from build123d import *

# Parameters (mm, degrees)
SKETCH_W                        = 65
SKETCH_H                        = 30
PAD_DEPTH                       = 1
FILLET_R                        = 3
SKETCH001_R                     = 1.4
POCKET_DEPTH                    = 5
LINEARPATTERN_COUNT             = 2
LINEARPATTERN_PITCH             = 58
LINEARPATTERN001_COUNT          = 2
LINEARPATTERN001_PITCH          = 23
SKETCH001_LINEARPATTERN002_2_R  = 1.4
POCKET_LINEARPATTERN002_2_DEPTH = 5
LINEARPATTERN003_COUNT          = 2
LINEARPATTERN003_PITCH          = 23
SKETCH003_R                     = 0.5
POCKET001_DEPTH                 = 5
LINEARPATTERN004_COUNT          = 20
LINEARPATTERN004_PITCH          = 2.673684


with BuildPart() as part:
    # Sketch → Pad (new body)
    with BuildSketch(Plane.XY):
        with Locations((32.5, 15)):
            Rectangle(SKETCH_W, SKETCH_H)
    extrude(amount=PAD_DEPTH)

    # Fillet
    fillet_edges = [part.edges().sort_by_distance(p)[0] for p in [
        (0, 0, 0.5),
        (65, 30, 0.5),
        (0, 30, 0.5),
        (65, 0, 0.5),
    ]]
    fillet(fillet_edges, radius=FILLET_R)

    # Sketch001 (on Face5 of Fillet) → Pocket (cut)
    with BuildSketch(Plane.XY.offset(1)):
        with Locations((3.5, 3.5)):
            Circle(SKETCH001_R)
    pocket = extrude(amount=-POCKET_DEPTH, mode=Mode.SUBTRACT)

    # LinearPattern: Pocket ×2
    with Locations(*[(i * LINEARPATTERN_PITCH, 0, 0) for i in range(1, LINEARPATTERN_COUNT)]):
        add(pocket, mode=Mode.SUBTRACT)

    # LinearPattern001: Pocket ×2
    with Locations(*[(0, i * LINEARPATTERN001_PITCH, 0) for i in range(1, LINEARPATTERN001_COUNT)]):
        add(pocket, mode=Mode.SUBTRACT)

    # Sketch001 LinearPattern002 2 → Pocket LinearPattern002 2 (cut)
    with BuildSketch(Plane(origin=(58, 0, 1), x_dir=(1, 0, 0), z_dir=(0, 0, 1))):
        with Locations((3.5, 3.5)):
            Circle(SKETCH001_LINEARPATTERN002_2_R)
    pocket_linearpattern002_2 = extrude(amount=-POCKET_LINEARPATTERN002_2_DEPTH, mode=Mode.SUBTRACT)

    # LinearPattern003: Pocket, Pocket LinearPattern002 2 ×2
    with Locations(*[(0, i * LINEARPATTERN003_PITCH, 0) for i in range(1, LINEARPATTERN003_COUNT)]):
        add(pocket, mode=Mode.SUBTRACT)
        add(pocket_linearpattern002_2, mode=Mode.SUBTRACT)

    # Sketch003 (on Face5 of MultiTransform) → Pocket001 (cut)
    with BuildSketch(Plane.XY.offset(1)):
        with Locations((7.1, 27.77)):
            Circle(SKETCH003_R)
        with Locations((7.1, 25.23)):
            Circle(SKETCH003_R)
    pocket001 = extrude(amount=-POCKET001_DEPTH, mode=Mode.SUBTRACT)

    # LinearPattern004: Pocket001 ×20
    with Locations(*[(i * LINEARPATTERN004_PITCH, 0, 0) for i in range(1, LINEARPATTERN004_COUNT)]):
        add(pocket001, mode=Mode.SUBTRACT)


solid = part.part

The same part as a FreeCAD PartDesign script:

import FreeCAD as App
import Part
import Sketcher
from FreeCAD import Vector


def edges_at(feature, points):
    """Names of the edges that pass closest to the given points."""
    edges = feature.Shape.Edges
    near = lambda p: min(range(len(edges)), key=lambda i: edges[i].distToShape(Part.Vertex(*p))[0])
    return sorted({f"Edge{near(p) + 1}" for p in points})


def add_polygon(sketch, points):
    """Adds a closed chain of lines whose ends are joined by coincident constraints."""
    first, n = sketch.GeometryCount, len(points)
    for a, b in zip(points, points[1:] + points[:1]):
        sketch.addGeometry(Part.LineSegment(App.Vector(*a, 0), App.Vector(*b, 0)), False)
    for i in range(n):
        sketch.addConstraint(Sketcher.Constraint("Coincident", first + i, 2, first + (i + 1) % n, 1))

doc = App.newDocument("Part")
params = doc.addObject("Spreadsheet::Sheet", "Params")
for row, (alias, value) in enumerate([
    ("sketch1_width", "65 mm"),
    ("sketch1_height", "30 mm"),
    ("pad1_length", "1 mm"),
    ("fillet_radius", "3 mm"),
    ("sketch2_diameter", "2.8 mm"),
    ("pocket1_length", "5 mm"),
    ("linearpattern_pitch", "58 mm"),
    ("linearpattern2_pitch", "23 mm"),
    ("sketch3_diameter", "2.8 mm"),
    ("pocket2_length", "5 mm"),
    ("linearpattern3_pitch", "23 mm"),
    ("sketch4_diameter", "1 mm"),
    ("pocket3_length", "5 mm"),
    ("linearpattern4_pitch", "2.673684 mm"),
], start=1):
    params.set(f"A{row}", alias)
    params.set(f"B{row}", "=" + value)
    params.setAlias(f"B{row}", alias)

body = doc.addObject("PartDesign::Body", "Body")

# Sketch on XY plane
sketch1 = body.newObject("Sketcher::SketchObject", "Sketch")
sketch1.AttachmentSupport = (doc.getObject("XY_Plane"), [""])
sketch1.MapMode = "FlatFace"
add_polygon(sketch1, [(0, 30), (0, 0), (65, 0), (65, 30)])  # lines 0-3
sketch1.addConstraint(Sketcher.Constraint("Vertical", 0))
sketch1.addConstraint(Sketcher.Constraint("Horizontal", 1))
sketch1.addConstraint(Sketcher.Constraint("Vertical", 2))
sketch1.addConstraint(Sketcher.Constraint("Horizontal", 3))
sketch1.addConstraint(Sketcher.Constraint("Coincident", 0, 2, -1, 1))
sketch1.addConstraint(Sketcher.Constraint("DistanceX", 1, 1, 1, 2, 65.0))
sketch1.addConstraint(Sketcher.Constraint("DistanceY", 0, 2, 0, 1, 30.0))
sketch1.setExpression("Constraints[9]", "Params.sketch1_width")
sketch1.setExpression("Constraints[10]", "Params.sketch1_height")
pad1 = body.newObject("PartDesign::Pad", "Pad")
pad1.Profile = sketch1
pad1.setExpression("Length", "Params.pad1_length")
doc.recompute()

fillet = body.newObject("PartDesign::Fillet", "Fillet")
fillet.Base = (pad1, edges_at(pad1, [
    (0, 0, 0.5),
    (65, 30, 0.5),
    (0, 30, 0.5),
    (65, 0, 0.5),
]))
fillet.setExpression("Radius", "Params.fillet_radius")

# Sketch on XY plane
sketch2 = body.newObject("Sketcher::SketchObject", "Sketch001")
sketch2.AttachmentSupport = (doc.getObject("XY_Plane"), [""])
sketch2.MapMode = "FlatFace"
sketch2.AttachmentOffset = App.Placement(Vector(0, 0, 1), App.Rotation())
sketch2.addGeometry(Part.Circle(Vector(3.5, 3.5, 0), Vector(0, 0, 1), 1.4), False)
sketch2.addConstraint(Sketcher.Constraint("Diameter", 0, 2.8))
sketch2.addConstraint(Sketcher.Constraint("DistanceX", -1, 1, 0, 3, 3.5))
sketch2.addConstraint(Sketcher.Constraint("DistanceY", -1, 1, 0, 3, 3.5))
sketch2.setExpression("Constraints[0]", "Params.sketch2_diameter")
pocket1 = body.newObject("PartDesign::Pocket", "Pocket")
pocket1.Profile = sketch2
pocket1.setExpression("Length", "Params.pocket1_length")
doc.recompute()

linearpattern = body.newObject("PartDesign::LinearPattern", "LinearPattern")
linearpattern.Originals = [pocket1]
linearpattern.Direction = (doc.getObject("X_Axis"), [""])
linearpattern.Mode = "offset"
linearpattern.setExpression("Offset", "Params.linearpattern_pitch")
linearpattern.Occurrences = 2
body.Tip = linearpattern
doc.recompute()

linearpattern2 = body.newObject("PartDesign::LinearPattern", "LinearPattern001")
linearpattern2.Originals = [pocket1]
linearpattern2.Direction = (doc.getObject("Y_Axis"), [""])
linearpattern2.Mode = "offset"
linearpattern2.setExpression("Offset", "Params.linearpattern2_pitch")
linearpattern2.Occurrences = 2
body.Tip = linearpattern2

# Sketch on XY plane
sketch3 = body.newObject("Sketcher::SketchObject", "Sketch002")
sketch3.AttachmentSupport = (doc.getObject("XY_Plane"), [""])
sketch3.MapMode = "FlatFace"
sketch3.AttachmentOffset = App.Placement(Vector(0, 0, 1), App.Rotation())
sketch3.addGeometry(Part.Circle(Vector(61.5, 3.5, 0), Vector(0, 0, 1), 1.4), False)
sketch3.addConstraint(Sketcher.Constraint("Diameter", 0, 2.8))
sketch3.addConstraint(Sketcher.Constraint("DistanceX", -1, 1, 0, 3, 61.5))
sketch3.addConstraint(Sketcher.Constraint("DistanceY", -1, 1, 0, 3, 3.5))
sketch3.setExpression("Constraints[0]", "Params.sketch3_diameter")
pocket2 = body.newObject("PartDesign::Pocket", "Pocket001")
pocket2.Profile = sketch3
pocket2.setExpression("Length", "Params.pocket2_length")
doc.recompute()

linearpattern3 = body.newObject("PartDesign::LinearPattern", "LinearPattern002")
linearpattern3.Originals = [pocket1, pocket2]
linearpattern3.Direction = (doc.getObject("Y_Axis"), [""])
linearpattern3.Mode = "offset"
linearpattern3.setExpression("Offset", "Params.linearpattern3_pitch")
linearpattern3.Occurrences = 2
body.Tip = linearpattern3

# Sketch on XY plane
sketch4 = body.newObject("Sketcher::SketchObject", "Sketch003")
sketch4.AttachmentSupport = (doc.getObject("XY_Plane"), [""])
sketch4.MapMode = "FlatFace"
sketch4.AttachmentOffset = App.Placement(Vector(0, 0, 1), App.Rotation())
sketch4.addGeometry(Part.Circle(Vector(7.1, 27.8, 0), Vector(0, 0, 1), 0.5), False)
sketch4.addGeometry(Part.Circle(Vector(7.1, 25.2, 0), Vector(0, 0, 1), 0.5), False)
sketch4.addConstraint(Sketcher.Constraint("Equal", 0, 1))
sketch4.addConstraint(Sketcher.Constraint("Vertical", 0, 3, 1, 3))
sketch4.addConstraint(Sketcher.Constraint("Diameter", 0, 1.0))
sketch4.addConstraint(Sketcher.Constraint("DistanceX", -1, 1, 0, 3, 7.1))
sketch4.addConstraint(Sketcher.Constraint("DistanceY", -1, 1, 0, 3, 27.77))
sketch4.addConstraint(Sketcher.Constraint("DistanceY", -1, 1, 1, 3, 25.23))
sketch4.setExpression("Constraints[2]", "Params.sketch4_diameter")
pocket3 = body.newObject("PartDesign::Pocket", "Pocket002")
pocket3.Profile = sketch4
pocket3.setExpression("Length", "Params.pocket3_length")
doc.recompute()

linearpattern4 = body.newObject("PartDesign::LinearPattern", "LinearPattern003")
linearpattern4.Originals = [pocket3]
linearpattern4.Direction = (doc.getObject("X_Axis"), [""])
linearpattern4.Mode = "offset"
linearpattern4.setExpression("Offset", "Params.linearpattern4_pitch")
linearpattern4.Occurrences = 20
body.Tip = linearpattern4

doc.recompute()
